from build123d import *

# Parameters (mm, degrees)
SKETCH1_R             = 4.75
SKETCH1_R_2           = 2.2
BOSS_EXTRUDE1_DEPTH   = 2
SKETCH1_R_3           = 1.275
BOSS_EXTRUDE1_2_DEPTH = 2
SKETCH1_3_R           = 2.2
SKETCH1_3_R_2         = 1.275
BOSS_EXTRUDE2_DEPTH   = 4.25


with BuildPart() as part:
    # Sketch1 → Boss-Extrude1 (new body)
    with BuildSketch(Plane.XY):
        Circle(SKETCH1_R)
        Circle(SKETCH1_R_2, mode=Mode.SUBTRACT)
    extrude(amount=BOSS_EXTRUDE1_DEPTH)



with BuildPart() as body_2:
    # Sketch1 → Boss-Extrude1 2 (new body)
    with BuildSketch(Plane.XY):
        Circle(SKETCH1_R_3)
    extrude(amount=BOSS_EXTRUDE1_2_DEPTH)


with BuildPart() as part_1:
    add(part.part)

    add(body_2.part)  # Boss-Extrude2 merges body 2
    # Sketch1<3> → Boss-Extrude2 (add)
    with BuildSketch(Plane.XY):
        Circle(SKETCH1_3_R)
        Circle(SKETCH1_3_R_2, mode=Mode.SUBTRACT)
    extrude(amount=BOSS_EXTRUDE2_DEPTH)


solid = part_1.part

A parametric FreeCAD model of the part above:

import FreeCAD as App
import Part
import Sketcher

V = App.Vector

doc = App.newDocument("Part")
body = doc.addObject("PartDesign::Body", "Body")

# Sketch on XY plane
sketch1 = body.newObject("Sketcher::SketchObject", "Sketch")
sketch1.AttachmentSupport = (doc.getObject("XY_Plane"), [""])
sketch1.MapMode = "FlatFace"
sketch1.addGeometry([
    Part.Circle(V(0, 0, 0), V(0, 0, 1), 4.75),
    Part.Circle(V(0, 0, 0), V(0, 0, 1), 2.2),
], False)
sketch1.addConstraint([
    Sketcher.Constraint("Coincident", 0, 3, -1, 1),
    Sketcher.Constraint("Coincident", 1, 3, -1, 1),
    Sketcher.Constraint("Diameter", 0, 9.5),
    Sketcher.Constraint("Diameter", 1, 4.4),
])
pad1 = body.newObject("PartDesign::Pad", "Pad")
pad1.Profile = sketch1
pad1.Length = 2
body2 = doc.addObject("PartDesign::Body", "Body001")

# Sketch on XY plane
sketch2 = body2.newObject("Sketcher::SketchObject", "Sketch001")
sketch2.AttachmentSupport = (doc.getObject("XY_Plane001"), [""])
sketch2.MapMode = "FlatFace"
sketch2.addGeometry(Part.Circle(V(0, 0, 0), V(0, 0, 1), 1.275), False)
sketch2.addConstraint([
    Sketcher.Constraint("Coincident", 0, 3, -1, 1),
    Sketcher.Constraint("Diameter", 0, 2.55),
])
pad2 = body2.newObject("PartDesign::Pad", "Pad001")
pad2.Profile = sketch2
pad2.Length = 2
body.AllowCompound = True
doc.recompute()

boolean = body.newObject("PartDesign::Boolean", "Boolean")
boolean.Type = "Fuse"
boolean.addObjects([body2])

# Sketch on XY plane
sketch3 = body.newObject("Sketcher::SketchObject", "Sketch002")
sketch3.AttachmentSupport = (doc.getObject("XY_Plane"), [""])
sketch3.MapMode = "FlatFace"
sketch3.addGeometry([
    Part.Circle(V(0, 0, 0), V(0, 0, 1), 2.2),
    Part.Circle(V(0, 0, 0), V(0, 0, 1), 1.275),
], False)
sketch3.addConstraint([
    Sketcher.Constraint("Coincident", 0, 3, -1, 1),
    Sketcher.Constraint("Coincident", 1, 3, -1, 1),
    Sketcher.Constraint("Diameter", 0, 4.4),
    Sketcher.Constraint("Diameter", 1, 2.55),
])
pad3 = body.newObject("PartDesign::Pad", "Pad002")
pad3.Profile = sketch3
pad3.Length = 4.25

doc.recompute()
